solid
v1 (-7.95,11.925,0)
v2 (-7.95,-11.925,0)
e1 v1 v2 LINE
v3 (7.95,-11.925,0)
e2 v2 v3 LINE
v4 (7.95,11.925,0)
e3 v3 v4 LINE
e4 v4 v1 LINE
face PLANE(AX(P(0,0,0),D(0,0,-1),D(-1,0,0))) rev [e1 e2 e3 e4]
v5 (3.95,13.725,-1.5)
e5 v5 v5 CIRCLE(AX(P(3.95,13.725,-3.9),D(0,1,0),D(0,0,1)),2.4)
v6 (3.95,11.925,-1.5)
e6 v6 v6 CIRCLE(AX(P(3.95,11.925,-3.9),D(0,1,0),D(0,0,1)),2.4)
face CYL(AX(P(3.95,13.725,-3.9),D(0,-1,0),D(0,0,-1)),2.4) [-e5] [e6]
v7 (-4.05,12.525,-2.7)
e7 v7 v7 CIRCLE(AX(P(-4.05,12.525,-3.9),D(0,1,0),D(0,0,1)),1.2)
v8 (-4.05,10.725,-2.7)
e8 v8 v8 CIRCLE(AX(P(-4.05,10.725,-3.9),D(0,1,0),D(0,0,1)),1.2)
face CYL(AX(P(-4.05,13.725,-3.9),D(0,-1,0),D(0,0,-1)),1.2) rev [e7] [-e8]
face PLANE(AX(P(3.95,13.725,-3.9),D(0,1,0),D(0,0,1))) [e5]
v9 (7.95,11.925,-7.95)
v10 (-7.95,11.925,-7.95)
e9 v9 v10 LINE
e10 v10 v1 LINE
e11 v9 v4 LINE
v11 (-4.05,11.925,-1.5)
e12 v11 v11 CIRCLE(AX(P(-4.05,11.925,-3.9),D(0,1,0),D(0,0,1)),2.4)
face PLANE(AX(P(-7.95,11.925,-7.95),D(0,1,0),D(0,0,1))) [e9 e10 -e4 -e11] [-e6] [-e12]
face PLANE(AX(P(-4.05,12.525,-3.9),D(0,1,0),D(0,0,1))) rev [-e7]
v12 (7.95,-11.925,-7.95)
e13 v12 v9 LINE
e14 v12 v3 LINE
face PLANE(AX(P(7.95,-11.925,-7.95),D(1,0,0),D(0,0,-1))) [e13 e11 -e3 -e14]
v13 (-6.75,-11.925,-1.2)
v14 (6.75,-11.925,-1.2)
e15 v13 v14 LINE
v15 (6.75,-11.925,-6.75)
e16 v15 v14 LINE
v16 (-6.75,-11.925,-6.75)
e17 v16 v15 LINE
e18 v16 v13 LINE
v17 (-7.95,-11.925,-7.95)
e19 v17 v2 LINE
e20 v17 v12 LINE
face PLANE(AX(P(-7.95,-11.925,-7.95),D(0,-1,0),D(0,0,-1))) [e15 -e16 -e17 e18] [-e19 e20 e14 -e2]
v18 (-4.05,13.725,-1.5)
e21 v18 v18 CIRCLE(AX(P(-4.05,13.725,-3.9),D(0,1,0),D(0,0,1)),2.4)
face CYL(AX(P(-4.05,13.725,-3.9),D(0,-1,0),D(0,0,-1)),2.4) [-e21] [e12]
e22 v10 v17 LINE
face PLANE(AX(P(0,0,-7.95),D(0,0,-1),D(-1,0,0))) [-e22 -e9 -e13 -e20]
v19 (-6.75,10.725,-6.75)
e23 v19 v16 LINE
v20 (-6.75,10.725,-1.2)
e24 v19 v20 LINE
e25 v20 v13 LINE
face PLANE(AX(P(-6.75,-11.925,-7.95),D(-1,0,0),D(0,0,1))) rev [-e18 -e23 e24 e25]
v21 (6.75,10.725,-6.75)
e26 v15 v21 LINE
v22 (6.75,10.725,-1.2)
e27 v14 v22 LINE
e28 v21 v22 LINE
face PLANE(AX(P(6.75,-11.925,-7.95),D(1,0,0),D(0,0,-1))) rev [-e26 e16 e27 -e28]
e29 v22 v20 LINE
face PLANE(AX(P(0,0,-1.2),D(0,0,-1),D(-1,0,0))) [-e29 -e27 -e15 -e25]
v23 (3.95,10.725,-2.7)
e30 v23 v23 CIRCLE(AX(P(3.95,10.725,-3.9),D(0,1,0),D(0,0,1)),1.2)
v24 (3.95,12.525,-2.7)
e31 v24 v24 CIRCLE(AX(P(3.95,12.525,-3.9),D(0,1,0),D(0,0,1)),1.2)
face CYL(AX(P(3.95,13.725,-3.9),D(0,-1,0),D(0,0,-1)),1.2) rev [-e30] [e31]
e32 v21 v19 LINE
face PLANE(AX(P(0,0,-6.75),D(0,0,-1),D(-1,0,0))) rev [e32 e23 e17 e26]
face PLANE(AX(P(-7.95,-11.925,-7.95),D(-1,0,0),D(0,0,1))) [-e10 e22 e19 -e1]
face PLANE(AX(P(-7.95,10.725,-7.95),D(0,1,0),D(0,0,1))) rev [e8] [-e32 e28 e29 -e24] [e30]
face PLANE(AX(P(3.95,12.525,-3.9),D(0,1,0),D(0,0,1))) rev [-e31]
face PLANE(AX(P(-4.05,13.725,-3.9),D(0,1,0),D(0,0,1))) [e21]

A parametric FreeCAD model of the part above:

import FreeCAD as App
import Part
import Sketcher
from FreeCAD import Vector
Q = App.Units.Quantity


def faces_at(feature, points):
    """Names of the faces that lie closest to the given points."""
    faces = feature.Shape.Faces
    near = lambda p: min(range(len(faces)), key=lambda i: faces[i].distToShape(Part.Vertex(*p))[0])
    return sorted({f"Face{near(p) + 1}" for p in points})

doc = App.newDocument("Part")
body = doc.addObject("PartDesign::Body", "Body")

# Sketch on XY plane
sketch1 = body.newObject("Sketcher::SketchObject", "Sketch")
sketch1.AttachmentSupport = (doc.getObject("XY_Plane"), [""])
sketch1.MapMode = "FlatFace"
sketch1.addGeometry([
    Part.LineSegment(Vector(-8, 12, 0), Vector(-8, -12, 0)),
    Part.LineSegment(Vector(-8, -12, 0), Vector(8, -12, 0)),
    Part.LineSegment(Vector(8, -12, 0), Vector(8, 12, 0)),
    Part.LineSegment(Vector(8, 12, 0), Vector(-8, 12, 0)),
], False)
sketch1.addConstraint([
    Sketcher.Constraint("Coincident", 0, 2, 1, 1),
    Sketcher.Constraint("Coincident", 1, 2, 2, 1),
    Sketcher.Constraint("Coincident", 2, 2, 3, 1),
    Sketcher.Constraint("Coincident", 3, 2, 0, 1),
    Sketcher.Constraint("Vertical", 0),
    Sketcher.Constraint("Horizontal", 1),
    Sketcher.Constraint("Vertical", 2),
    Sketcher.Constraint("Horizontal", 3),
    Sketcher.Constraint("Symmetric", 0, 2, 2, 2, -1, 1),
    Sketcher.Constraint("DistanceX", 1, 1, 1, 2, Q("15.9 mm")),
    Sketcher.Constraint("DistanceY", 0, 2, 0, 1, Q("23.85 mm")),
])
pad1 = body.newObject("PartDesign::Pad", "Pad")
pad1.Profile = sketch1
pad1.Length = 7.95
pad1.Reversed = True

# Sketch on XZ plane
sketch2 = body.newObject("Sketcher::SketchObject", "Sketch001")
sketch2.AttachmentSupport = (doc.getObject("XZ_Plane"), [""])
sketch2.MapMode = "FlatFace"
sketch2.AttachmentOffset = App.Placement(Vector(0, 0, -11.925), App.Rotation())
sketch2.addGeometry(Part.Circle(Vector(-4, -3.9, 0), Vector(0, 0, 1), 2.4), False)
sketch2.addConstraint([
    Sketcher.Constraint("Diameter", 0, Q("4.8 mm")),
    Sketcher.Constraint("DistanceY", 0, 3, -1, 1, Q("3.9 mm")),
    Sketcher.Constraint("DistanceX", 0, 3, -1, 1, Q("4.05 mm")),
])
pad2 = body.newObject("PartDesign::Pad", "Pad001")
pad2.Profile = sketch2
pad2.Length = 1.8
pad2.Reversed = True
doc.recompute()

linearpattern = body.newObject("PartDesign::LinearPattern", "LinearPattern")
linearpattern.Originals = [pad2]
linearpattern.Direction = (doc.getObject("X_Axis"), [""])
linearpattern.Mode = "offset"
linearpattern.Offset = 8
linearpattern.Occurrences = 2
body.Tip = linearpattern
doc.recompute()

thickness = body.newObject("PartDesign::Thickness", "Thickness")
thickness.Base = (linearpattern, faces_at(linearpattern, [(0, -11.925, -3.975)]))
thickness.Value = 1.2
thickness.Reversed = True
thickness.Join = "Intersection"

doc.recompute()
